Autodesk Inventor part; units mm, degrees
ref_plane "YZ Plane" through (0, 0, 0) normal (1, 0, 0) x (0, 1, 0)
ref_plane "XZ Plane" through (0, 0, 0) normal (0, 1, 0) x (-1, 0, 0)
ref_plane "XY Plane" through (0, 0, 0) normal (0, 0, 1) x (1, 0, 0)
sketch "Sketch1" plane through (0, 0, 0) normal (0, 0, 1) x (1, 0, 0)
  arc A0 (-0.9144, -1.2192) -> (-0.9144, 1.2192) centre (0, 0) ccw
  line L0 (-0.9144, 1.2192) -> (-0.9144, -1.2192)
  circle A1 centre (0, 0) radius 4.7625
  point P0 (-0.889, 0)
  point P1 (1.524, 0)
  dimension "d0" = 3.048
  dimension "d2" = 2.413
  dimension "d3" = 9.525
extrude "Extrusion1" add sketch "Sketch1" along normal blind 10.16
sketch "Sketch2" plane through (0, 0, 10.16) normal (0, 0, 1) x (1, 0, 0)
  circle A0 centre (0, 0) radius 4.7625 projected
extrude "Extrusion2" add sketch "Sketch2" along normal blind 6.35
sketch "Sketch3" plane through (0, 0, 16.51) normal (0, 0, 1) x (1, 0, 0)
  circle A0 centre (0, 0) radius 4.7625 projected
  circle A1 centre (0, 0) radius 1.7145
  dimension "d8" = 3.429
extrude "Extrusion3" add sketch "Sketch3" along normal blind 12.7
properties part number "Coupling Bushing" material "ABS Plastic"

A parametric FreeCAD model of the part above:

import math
import FreeCAD as App
import Part
import Sketcher

V = App.Vector
Q = App.Units.Quantity

doc = App.newDocument("Part")
body = doc.addObject("PartDesign::Body", "Body")

# Sketch on XY plane
sketch1 = doc.addObject("Sketcher::SketchObject", "Sketch")
body.addObject(sketch1)
sketch1.AttachmentSupport = (doc.XY_Plane, [""])
sketch1.MapMode = "FlatFace"
sketch1.addGeometry(Part.Circle(V(0, 0, 0), V(0, 0, 1), 4.8), False)
sketch1.addGeometry(Part.ArcOfCircle(Part.Circle(V(0, 0, 0), V(0, 0, 1), 1.5), math.radians(-127), math.radians(127)), False)
sketch1.addGeometry(Part.LineSegment(V(-0.9, -1.2, 0), V(-0.9, 1.2, 0)), False)
sketch1.addConstraint(Sketcher.Constraint("Coincident", 1, 1, 2, 1))
sketch1.addConstraint(Sketcher.Constraint("Coincident", 2, 2, 1, 2))
sketch1.addConstraint(Sketcher.Constraint("Vertical", 2))
sketch1.addConstraint(Sketcher.Constraint("Coincident", 0, 3, -1, 1))
sketch1.addConstraint(Sketcher.Constraint("Coincident", 1, 3, -1, 1))
sketch1.addConstraint(Sketcher.Constraint("Radius", 1, Q("0.06 in")))
sketch1.addConstraint(Sketcher.Constraint("Diameter", 0, Q("0.375 in")))
sketch1.addConstraint(Sketcher.Constraint("DistanceY", 2, 1, 2, 2, Q("0.096 in")))
pad1 = doc.addObject("PartDesign::Pad", "Pad")
body.addObject(pad1)
pad1.Profile = sketch1
pad1.Length = Q("0.4 in")

# Sketch on XY plane
sketch2 = doc.addObject("Sketcher::SketchObject", "Sketch001")
body.addObject(sketch2)
sketch2.AttachmentSupport = (doc.XY_Plane, [""])
sketch2.MapMode = "FlatFace"
sketch2.AttachmentOffset = App.Placement(V(0, 0, 0.4 * 25.4), App.Rotation())
sketch2.addGeometry(Part.Circle(V(0, 0, 0), V(0, 0, 1), 4.8), False)
sketch2.addConstraint(Sketcher.Constraint("Coincident", 0, 3, -1, 1))
sketch2.addConstraint(Sketcher.Constraint("Diameter", 0, Q("0.375 in")))
pad2 = doc.addObject("PartDesign::Pad", "Pad001")
body.addObject(pad2)
pad2.Profile = sketch2
pad2.Length = Q("0.25 in")

# Sketch on XY plane
sketch3 = doc.addObject("Sketcher::SketchObject", "Sketch002")
body.addObject(sketch3)
sketch3.AttachmentSupport = (doc.XY_Plane, [""])
sketch3.MapMode = "FlatFace"
sketch3.AttachmentOffset = App.Placement(V(0, 0, 0.65 * 25.4), App.Rotation())
sketch3.addGeometry(Part.Circle(V(0, 0, 0), V(0, 0, 1), 4.8), False)
sketch3.addGeometry(Part.Circle(V(0, 0, 0), V(0, 0, 1), 1.7), False)
sketch3.addConstraint(Sketcher.Constraint("Coincident", 0, 3, -1, 1))
sketch3.addConstraint(Sketcher.Constraint("Coincident", 1, 3, -1, 1))
sketch3.addConstraint(Sketcher.Constraint("Diameter", 1, Q("0.135 in")))
sketch3.addConstraint(Sketcher.Constraint("Diameter", 0, Q("0.375 in")))
pad3 = doc.addObject("PartDesign::Pad", "Pad002")
body.addObject(pad3)
pad3.Profile = sketch3
pad3.Length = Q("0.5 in")

doc.recompute()
